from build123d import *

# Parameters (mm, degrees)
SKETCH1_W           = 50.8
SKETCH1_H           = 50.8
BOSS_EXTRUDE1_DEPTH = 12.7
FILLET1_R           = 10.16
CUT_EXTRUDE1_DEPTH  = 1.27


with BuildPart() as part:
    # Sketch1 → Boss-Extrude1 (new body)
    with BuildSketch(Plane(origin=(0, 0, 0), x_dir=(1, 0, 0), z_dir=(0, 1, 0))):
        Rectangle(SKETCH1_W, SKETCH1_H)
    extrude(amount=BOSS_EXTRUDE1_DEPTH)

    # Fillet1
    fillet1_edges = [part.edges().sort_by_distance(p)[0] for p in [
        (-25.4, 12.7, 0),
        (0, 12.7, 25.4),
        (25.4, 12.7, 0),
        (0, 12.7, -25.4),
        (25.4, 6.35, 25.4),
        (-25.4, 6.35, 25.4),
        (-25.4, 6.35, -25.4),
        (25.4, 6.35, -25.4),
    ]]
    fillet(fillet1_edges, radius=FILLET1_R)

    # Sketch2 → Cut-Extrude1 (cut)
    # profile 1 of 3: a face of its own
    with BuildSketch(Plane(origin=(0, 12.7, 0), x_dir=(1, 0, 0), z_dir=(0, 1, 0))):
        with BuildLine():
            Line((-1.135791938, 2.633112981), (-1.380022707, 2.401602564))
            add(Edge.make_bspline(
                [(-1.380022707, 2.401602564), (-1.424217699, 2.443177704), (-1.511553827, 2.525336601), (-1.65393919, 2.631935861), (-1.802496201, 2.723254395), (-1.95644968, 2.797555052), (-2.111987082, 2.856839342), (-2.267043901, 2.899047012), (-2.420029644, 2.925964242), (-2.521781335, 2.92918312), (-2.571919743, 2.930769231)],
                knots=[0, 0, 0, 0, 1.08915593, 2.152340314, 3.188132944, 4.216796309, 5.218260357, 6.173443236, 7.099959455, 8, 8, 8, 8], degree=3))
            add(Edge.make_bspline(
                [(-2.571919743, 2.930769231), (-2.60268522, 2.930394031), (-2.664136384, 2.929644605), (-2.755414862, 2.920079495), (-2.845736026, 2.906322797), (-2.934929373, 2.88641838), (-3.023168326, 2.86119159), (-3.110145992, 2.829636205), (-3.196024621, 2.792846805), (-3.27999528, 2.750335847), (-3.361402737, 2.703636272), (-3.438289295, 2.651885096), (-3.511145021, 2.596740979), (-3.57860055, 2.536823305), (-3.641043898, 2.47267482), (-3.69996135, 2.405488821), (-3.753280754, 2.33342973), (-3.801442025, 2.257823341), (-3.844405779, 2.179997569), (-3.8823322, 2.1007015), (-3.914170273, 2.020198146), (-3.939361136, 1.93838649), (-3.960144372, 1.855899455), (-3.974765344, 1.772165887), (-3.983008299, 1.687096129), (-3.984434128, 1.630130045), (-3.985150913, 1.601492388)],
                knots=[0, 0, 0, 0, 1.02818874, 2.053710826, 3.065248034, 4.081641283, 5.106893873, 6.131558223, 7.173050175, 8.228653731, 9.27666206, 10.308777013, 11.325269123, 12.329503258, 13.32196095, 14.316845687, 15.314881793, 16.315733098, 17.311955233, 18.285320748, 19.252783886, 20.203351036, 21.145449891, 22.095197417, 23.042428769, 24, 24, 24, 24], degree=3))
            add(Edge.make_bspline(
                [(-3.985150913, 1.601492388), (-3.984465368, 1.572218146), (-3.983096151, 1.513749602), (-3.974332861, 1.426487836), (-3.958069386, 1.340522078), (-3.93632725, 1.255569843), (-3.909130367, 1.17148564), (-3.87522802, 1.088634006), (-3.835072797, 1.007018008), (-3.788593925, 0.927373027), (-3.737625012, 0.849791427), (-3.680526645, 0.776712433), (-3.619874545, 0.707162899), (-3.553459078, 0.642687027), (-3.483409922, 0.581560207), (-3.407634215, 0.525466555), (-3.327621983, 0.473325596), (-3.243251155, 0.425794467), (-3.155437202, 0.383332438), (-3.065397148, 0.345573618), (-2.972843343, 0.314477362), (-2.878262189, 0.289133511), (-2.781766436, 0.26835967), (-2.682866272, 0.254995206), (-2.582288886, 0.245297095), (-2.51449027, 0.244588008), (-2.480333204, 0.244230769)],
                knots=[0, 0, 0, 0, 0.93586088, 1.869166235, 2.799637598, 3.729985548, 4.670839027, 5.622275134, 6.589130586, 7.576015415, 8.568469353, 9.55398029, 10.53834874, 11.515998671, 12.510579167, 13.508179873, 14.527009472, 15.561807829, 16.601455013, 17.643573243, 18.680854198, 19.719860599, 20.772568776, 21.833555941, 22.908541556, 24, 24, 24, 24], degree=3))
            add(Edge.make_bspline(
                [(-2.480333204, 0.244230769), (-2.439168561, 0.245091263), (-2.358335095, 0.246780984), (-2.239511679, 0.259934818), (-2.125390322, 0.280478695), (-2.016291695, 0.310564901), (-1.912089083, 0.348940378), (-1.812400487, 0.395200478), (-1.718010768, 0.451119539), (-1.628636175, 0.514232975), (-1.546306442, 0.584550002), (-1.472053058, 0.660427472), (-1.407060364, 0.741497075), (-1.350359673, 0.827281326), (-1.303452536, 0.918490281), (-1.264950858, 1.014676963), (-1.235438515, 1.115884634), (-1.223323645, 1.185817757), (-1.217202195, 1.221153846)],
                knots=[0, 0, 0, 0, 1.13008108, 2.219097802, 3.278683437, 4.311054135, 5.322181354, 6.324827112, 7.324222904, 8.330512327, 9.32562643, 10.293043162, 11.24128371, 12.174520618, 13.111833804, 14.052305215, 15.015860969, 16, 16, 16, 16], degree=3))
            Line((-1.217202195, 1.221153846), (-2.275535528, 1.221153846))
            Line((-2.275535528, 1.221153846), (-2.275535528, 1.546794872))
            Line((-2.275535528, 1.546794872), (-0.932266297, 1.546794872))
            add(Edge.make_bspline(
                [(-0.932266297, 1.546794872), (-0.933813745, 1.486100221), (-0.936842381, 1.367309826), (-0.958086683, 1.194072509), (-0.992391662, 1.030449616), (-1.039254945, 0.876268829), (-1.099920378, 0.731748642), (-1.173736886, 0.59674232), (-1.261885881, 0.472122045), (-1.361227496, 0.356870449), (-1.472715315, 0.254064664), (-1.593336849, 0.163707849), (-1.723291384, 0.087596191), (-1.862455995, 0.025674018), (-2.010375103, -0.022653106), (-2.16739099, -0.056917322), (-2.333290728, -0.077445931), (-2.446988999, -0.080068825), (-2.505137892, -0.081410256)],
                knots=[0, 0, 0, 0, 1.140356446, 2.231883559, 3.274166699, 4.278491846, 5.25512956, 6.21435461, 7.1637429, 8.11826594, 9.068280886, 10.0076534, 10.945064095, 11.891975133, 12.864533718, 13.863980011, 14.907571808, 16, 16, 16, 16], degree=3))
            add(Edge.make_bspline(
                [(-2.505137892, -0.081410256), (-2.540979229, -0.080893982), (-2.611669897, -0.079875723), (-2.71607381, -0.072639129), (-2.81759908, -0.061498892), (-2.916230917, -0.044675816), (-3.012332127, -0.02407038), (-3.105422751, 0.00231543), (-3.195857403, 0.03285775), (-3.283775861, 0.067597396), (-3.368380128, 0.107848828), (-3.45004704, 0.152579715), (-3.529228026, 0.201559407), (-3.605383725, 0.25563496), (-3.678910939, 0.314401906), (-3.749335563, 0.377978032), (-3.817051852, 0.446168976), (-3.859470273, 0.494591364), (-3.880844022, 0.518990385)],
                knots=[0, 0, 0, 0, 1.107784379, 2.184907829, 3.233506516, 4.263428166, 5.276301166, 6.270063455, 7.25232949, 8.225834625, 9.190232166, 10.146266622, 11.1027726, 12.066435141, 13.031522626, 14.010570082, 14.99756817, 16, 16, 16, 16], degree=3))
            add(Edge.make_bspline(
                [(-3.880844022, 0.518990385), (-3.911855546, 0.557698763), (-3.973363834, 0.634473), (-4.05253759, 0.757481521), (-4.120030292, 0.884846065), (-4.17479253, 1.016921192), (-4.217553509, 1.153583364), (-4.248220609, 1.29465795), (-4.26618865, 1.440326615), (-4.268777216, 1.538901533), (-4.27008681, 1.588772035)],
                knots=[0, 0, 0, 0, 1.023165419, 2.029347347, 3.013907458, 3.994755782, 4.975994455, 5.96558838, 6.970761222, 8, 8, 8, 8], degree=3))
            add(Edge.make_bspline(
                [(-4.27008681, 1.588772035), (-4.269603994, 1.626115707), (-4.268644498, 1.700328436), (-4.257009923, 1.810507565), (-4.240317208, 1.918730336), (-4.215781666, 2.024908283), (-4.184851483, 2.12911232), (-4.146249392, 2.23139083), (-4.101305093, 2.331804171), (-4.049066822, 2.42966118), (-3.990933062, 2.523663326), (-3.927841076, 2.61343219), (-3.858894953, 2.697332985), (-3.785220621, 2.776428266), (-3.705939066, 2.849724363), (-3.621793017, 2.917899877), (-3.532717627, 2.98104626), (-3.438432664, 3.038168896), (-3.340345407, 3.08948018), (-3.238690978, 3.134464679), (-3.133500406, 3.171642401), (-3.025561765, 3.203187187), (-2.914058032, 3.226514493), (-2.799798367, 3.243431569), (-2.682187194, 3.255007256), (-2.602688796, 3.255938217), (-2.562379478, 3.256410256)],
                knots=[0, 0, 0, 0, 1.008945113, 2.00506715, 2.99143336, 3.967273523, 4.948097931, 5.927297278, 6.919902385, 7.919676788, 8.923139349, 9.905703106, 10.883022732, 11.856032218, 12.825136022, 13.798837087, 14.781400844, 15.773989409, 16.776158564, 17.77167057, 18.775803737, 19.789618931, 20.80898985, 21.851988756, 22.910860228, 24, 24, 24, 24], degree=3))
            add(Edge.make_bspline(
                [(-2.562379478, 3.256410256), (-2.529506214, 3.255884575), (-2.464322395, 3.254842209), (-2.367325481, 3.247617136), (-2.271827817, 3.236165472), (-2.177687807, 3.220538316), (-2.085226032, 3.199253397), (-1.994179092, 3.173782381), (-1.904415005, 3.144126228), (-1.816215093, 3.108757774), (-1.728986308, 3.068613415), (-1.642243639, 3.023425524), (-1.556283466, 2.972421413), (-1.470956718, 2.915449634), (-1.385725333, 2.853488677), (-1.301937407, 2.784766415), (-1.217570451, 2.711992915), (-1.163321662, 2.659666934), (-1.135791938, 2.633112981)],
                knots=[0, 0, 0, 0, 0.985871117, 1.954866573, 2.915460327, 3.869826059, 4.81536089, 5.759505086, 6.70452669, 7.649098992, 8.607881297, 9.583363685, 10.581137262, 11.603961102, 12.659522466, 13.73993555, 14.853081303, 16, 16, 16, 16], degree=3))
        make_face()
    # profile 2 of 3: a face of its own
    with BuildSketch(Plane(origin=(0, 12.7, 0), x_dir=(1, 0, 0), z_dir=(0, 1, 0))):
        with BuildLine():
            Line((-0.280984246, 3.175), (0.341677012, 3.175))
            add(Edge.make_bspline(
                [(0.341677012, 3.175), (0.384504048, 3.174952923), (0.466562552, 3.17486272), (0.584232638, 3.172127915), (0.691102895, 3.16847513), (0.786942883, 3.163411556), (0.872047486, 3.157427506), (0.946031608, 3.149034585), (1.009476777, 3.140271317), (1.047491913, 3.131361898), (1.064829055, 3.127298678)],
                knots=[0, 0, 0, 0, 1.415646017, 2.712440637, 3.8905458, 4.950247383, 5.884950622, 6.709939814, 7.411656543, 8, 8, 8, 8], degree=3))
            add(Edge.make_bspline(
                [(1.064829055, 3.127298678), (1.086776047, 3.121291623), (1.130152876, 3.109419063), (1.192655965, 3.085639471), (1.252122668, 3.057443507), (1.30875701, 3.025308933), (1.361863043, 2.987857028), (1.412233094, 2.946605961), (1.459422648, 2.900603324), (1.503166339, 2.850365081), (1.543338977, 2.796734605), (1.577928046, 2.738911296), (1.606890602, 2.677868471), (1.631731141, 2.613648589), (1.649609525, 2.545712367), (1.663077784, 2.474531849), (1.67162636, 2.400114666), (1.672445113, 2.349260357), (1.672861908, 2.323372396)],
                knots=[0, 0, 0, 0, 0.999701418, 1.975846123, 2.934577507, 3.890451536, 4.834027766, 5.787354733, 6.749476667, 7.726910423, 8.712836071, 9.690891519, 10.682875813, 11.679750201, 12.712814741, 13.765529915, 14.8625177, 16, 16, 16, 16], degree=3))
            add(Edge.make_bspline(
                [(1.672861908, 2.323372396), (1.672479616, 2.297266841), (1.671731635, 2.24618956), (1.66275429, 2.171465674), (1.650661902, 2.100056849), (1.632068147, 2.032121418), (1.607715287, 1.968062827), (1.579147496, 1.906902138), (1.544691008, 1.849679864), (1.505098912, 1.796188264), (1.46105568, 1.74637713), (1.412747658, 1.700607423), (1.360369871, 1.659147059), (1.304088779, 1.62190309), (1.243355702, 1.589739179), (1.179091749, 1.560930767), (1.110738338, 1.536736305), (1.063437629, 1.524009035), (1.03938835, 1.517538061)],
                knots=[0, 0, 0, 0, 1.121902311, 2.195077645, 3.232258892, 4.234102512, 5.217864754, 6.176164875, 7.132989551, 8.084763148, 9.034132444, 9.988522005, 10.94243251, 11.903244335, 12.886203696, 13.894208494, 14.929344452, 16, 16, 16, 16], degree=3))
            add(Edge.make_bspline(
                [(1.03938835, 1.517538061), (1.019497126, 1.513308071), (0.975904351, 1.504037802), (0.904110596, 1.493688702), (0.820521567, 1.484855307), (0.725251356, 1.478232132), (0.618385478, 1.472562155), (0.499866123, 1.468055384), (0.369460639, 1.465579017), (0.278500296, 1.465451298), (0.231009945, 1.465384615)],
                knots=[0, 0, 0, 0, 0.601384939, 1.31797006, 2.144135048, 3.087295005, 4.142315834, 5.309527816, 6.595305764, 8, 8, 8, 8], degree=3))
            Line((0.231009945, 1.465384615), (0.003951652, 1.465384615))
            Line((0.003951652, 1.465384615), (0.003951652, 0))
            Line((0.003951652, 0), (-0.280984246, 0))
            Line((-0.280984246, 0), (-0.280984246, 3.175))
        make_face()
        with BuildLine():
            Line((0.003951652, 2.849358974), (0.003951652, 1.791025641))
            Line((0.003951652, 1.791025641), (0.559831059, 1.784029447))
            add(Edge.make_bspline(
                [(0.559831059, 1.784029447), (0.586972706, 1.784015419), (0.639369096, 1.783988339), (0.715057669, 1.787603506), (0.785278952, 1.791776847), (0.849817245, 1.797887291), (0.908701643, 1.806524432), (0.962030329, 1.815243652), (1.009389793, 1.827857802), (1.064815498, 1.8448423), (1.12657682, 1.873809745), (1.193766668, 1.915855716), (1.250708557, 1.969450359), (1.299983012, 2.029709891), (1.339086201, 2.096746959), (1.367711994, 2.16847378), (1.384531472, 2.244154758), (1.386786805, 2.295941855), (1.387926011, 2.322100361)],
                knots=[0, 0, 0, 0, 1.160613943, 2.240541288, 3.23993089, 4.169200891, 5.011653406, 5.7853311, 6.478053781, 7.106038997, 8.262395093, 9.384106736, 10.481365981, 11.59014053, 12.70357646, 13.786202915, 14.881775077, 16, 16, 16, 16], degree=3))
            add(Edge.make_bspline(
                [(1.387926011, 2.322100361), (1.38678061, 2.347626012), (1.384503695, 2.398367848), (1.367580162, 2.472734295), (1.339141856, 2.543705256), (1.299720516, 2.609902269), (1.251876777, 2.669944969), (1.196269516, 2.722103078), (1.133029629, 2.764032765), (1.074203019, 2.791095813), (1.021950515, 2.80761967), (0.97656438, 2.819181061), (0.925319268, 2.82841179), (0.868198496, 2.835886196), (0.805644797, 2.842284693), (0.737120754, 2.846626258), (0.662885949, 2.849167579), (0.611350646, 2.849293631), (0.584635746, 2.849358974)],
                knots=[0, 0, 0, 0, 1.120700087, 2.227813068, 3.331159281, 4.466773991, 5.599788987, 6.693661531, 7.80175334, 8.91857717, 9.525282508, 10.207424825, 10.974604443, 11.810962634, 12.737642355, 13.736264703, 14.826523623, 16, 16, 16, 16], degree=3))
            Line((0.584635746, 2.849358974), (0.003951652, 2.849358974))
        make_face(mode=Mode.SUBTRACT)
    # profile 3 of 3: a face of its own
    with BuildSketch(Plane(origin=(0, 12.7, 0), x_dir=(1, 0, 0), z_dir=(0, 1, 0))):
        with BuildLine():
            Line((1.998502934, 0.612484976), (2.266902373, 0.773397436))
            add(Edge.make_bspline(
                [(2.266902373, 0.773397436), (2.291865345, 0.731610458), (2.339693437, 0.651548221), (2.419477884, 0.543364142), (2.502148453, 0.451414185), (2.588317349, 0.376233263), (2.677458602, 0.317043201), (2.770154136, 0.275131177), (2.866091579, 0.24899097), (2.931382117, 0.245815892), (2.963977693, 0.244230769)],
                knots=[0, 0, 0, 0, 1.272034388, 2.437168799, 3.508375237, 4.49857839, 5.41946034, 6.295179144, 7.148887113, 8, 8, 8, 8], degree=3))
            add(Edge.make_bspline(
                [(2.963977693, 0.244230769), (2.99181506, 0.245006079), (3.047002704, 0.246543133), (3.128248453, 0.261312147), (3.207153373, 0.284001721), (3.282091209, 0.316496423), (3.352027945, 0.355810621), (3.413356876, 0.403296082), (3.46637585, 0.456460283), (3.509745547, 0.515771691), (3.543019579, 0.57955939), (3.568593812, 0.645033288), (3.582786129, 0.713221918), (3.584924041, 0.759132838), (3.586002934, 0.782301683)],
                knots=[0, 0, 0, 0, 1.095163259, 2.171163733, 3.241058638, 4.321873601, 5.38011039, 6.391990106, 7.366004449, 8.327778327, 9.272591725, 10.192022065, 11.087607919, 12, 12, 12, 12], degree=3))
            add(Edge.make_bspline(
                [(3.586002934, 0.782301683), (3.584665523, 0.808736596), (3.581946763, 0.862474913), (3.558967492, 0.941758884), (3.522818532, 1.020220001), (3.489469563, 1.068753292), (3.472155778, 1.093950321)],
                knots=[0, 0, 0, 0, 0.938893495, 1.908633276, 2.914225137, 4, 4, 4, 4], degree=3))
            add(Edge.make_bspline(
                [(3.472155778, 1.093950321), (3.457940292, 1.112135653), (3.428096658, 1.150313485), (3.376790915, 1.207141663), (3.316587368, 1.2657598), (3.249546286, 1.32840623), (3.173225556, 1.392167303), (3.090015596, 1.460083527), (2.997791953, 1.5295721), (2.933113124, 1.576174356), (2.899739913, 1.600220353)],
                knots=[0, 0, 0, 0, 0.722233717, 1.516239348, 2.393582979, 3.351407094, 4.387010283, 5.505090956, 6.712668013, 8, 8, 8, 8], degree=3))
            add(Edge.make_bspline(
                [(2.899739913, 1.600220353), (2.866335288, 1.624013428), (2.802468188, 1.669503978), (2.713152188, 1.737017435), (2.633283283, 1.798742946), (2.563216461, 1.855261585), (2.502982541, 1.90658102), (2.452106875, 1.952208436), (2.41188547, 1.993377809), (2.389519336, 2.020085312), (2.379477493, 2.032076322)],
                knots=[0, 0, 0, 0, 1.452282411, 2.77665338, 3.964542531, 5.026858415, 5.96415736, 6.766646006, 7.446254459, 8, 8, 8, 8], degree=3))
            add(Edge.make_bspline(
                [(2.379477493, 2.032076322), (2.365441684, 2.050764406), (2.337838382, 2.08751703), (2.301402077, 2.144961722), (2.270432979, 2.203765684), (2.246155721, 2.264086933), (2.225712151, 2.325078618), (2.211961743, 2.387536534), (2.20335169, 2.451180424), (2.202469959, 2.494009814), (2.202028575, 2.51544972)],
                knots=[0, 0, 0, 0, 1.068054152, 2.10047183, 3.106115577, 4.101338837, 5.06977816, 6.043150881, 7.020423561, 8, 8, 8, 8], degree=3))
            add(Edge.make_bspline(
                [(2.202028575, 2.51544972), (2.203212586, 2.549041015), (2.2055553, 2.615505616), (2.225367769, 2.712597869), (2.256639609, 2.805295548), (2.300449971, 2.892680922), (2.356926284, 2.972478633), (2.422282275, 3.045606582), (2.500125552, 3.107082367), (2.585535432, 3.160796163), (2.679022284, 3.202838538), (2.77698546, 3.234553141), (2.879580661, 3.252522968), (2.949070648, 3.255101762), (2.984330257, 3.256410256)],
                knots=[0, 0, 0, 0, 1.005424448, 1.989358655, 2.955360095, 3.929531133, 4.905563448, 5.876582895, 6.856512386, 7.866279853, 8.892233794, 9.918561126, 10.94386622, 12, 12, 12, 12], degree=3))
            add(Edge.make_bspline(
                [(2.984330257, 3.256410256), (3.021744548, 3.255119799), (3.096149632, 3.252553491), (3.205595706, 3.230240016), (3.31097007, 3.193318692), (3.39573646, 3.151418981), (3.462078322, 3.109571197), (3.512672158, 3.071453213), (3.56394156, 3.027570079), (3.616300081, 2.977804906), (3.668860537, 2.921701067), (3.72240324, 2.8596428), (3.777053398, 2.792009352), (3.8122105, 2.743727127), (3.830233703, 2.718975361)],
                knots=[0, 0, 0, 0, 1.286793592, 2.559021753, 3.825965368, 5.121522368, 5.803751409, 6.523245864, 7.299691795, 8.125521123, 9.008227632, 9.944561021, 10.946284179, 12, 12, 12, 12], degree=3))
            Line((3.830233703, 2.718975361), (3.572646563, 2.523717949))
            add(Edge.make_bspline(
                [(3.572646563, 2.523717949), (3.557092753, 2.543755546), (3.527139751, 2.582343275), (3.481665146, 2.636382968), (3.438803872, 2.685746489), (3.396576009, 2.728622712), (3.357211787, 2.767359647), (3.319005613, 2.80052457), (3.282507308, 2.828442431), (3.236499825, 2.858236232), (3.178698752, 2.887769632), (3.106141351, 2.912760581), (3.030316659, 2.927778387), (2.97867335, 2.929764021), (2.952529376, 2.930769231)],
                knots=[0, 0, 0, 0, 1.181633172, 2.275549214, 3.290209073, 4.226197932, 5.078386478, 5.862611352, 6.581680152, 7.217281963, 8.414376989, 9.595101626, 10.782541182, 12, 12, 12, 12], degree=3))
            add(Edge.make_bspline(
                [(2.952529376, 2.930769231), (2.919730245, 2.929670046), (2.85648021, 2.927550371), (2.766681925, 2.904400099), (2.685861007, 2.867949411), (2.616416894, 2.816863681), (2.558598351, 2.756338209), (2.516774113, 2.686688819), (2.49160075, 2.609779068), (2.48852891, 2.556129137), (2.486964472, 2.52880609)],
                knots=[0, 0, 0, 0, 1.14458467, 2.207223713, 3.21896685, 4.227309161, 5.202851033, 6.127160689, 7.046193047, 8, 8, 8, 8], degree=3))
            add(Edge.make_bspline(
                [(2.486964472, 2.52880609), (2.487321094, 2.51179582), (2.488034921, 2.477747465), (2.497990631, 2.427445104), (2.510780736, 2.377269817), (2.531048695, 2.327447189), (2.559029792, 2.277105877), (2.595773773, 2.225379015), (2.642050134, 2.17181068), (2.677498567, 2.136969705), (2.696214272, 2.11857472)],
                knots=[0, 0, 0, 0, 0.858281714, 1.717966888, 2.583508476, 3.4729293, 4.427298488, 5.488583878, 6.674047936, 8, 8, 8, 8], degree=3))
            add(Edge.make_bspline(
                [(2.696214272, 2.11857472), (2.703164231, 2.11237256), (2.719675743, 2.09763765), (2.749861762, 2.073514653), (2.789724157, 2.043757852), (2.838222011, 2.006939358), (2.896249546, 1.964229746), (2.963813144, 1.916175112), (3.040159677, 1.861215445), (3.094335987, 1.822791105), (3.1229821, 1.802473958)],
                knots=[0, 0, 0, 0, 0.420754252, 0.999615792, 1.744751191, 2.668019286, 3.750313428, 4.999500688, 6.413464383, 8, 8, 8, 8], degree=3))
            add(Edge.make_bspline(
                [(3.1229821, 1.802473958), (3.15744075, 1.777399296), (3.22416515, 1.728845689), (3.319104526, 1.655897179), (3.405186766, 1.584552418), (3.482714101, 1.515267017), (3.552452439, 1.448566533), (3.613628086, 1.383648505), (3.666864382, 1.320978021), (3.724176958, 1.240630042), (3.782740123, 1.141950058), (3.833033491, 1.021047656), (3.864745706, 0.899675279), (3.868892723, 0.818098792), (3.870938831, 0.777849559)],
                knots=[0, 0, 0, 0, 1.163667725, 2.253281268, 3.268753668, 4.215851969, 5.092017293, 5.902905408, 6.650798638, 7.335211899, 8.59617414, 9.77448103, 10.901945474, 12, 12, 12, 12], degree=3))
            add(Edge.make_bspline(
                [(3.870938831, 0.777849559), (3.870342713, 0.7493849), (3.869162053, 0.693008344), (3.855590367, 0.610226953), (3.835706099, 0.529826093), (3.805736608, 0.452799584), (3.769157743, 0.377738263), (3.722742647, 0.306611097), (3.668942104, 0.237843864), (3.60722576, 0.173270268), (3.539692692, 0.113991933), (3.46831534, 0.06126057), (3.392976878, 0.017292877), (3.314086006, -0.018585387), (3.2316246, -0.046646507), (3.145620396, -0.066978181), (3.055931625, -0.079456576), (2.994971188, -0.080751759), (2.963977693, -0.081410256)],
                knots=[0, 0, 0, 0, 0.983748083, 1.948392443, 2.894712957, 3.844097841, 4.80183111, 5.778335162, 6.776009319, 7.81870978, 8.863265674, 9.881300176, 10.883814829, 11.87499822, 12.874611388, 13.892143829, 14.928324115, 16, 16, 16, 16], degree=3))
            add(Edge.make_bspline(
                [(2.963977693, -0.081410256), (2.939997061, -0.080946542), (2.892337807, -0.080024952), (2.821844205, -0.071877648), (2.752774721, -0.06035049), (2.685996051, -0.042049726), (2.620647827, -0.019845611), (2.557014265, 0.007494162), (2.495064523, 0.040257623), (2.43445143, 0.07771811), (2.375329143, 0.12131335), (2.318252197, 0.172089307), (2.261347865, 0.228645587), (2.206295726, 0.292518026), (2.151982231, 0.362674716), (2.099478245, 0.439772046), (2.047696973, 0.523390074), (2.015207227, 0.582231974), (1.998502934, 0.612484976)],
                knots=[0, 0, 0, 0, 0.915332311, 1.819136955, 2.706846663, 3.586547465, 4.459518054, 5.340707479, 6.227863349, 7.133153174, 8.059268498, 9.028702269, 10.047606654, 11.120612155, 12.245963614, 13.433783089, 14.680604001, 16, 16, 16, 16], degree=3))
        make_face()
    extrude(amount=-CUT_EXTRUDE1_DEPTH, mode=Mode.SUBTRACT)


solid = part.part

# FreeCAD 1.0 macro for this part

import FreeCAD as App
import Part
import Sketcher

V = App.Vector
Q = App.Units.Quantity


def edges_at(feature, points):
    """Names of the edges that pass closest to the given points."""
    edges = feature.Shape.Edges
    near = lambda p: min(range(len(edges)), key=lambda i: edges[i].distToShape(Part.Vertex(*p))[0])
    return sorted({f"Edge{near(p) + 1}" for p in points})


def add_polygon(sketch, points):
    """Adds a closed chain of lines whose ends are joined by coincident constraints."""
    first, n = sketch.GeometryCount, len(points)
    for a, b in zip(points, points[1:] + points[:1]):
        sketch.addGeometry(Part.LineSegment(App.Vector(*a, 0), App.Vector(*b, 0)), False)
    for i in range(n):
        sketch.addConstraint(Sketcher.Constraint("Coincident", first + i, 2, first + (i + 1) % n, 1))

doc = App.newDocument("Part")
body = doc.addObject("PartDesign::Body", "Body")

# Sketch on XZ plane
sketch1 = doc.addObject("Sketcher::SketchObject", "Sketch")
body.addObject(sketch1)
sketch1.AttachmentSupport = (doc.XZ_Plane, [""])
sketch1.MapMode = "FlatFace"
add_polygon(sketch1, [(-25, -25), (-25, 25), (25, 25), (25, -25)])  # lines 0-3
sketch1.addConstraint([
    Sketcher.Constraint("Vertical", 0),
    Sketcher.Constraint("Horizontal", 1),
    Sketcher.Constraint("Vertical", 2),
    Sketcher.Constraint("Horizontal", 3),
    Sketcher.Constraint("Symmetric", 0, 2, 2, 2, -1, 1),
    Sketcher.Constraint("Equal", 3, 0),
    Sketcher.Constraint("DistanceX", 1, 1, 1, 2, Q("2 in")),
])
pad1 = doc.addObject("PartDesign::Pad", "Pad")
body.addObject(pad1)
pad1.Profile = sketch1
pad1.Length = Q("0.5 in")
pad1.Reversed = True
doc.recompute()

fillet = doc.addObject("PartDesign::Fillet", "Fillet")
body.addObject(fillet)
fillet.Base = (pad1, edges_at(pad1, [
    (-25.4, 12.7, 0),
    (0, 12.7, 25.4),
    (25.4, 12.7, 0),
    (0, 12.7, -25.4),
    (25.4, 6.35, 25.4),
    (-25.4, 6.35, 25.4),
    (-25.4, 6.35, -25.4),
    (25.4, 6.35, -25.4),
]))
fillet.Radius = Q("0.4 in")

# Sketch on XZ plane
sketch2 = doc.addObject("Sketcher::SketchObject", "Sketch001")
body.addObject(sketch2)
sketch2.AttachmentSupport = (doc.XZ_Plane, [""])
sketch2.MapMode = "FlatFace"
sketch2.AttachmentOffset = App.Placement(V(0, 0, -0.5 * 25.4), App.Rotation())
sketch2.addGeometry([
    Part.LineSegment(V(-1.380023, -2.401603, 0), V(-1.135792, -2.633113, 0)),  # 0
    Part.BSplineCurve([V(-2.562379, -3.25641, 0), V(-2.529506, -3.255885, 0), V(-2.464322, -3.254842, 0), V(-2.367325, -3.247617, 0), V(-2.271828, -3.236165, 0), V(-2.177688, -3.220538, 0), V(-2.085226, -3.199253, 0), V(-1.994179, -3.173782, 0), V(-1.904415, -3.144126, 0), V(-1.816215, -3.108758, 0), V(-1.728986, -3.068613, 0), V(-1.642244, -3.023426, 0), V(-1.556283, -2.972421, 0), V(-1.470957, -2.91545, 0), V(-1.385725, -2.853489, 0), V(-1.301937, -2.784766, 0), V(-1.21757, -2.711993, 0), V(-1.163322, -2.659667, 0), V(-1.135792, -2.633113, 0)], [4, 1, 1, 1, 1, 1, 1, 1, 1, 1, 1, 1, 1, 1, 1, 1, 4], [0, 0.985871117, 1.954866573, 2.915460327, 3.869826059, 4.81536089, 5.759505086, 6.70452669, 7.649098992, 8.607881297, 9.583363685, 10.581137262, 11.603961102, 12.659522466, 13.73993555, 14.853081303, 16], False, 3, [1, 1, 1, 1, 1, 1, 1, 1, 1, 1, 1, 1, 1, 1, 1, 1, 1, 1, 1], False),  # 1
    Part.BSplineCurve([V(-4.270087, -1.588772, 0), V(-4.269604, -1.626116, 0), V(-4.268644, -1.700328, 0), V(-4.25701, -1.810508, 0), V(-4.240317, -1.91873, 0), V(-4.215782, -2.024908, 0), V(-4.184851, -2.129112, 0), V(-4.146249, -2.231391, 0), V(-4.101305, -2.331804, 0), V(-4.049067, -2.429661, 0), V(-3.990933, -2.523663, 0), V(-3.927841, -2.613432, 0), V(-3.858895, -2.697333, 0), V(-3.785221, -2.776428, 0), V(-3.705939, -2.849724, 0), V(-3.621793, -2.9179, 0), V(-3.532718, -2.981046, 0), V(-3.438433, -3.038169, 0), V(-3.340345, -3.08948, 0), V(-3.238691, -3.134465, 0), V(-3.1335, -3.171642, 0), V(-3.025562, -3.203187, 0), V(-2.914058, -3.226514, 0), V(-2.799798, -3.243432, 0), V(-2.682187, -3.255007, 0), V(-2.602689, -3.255938, 0), V(-2.562379, -3.25641, 0)], [4, 1, 1, 1, 1, 1, 1, 1, 1, 1, 1, 1, 1, 1, 1, 1, 1, 1, 1, 1, 1, 1, 1, 1, 4], [0, 1.008945113, 2.00506715, 2.99143336, 3.967273523, 4.948097931, 5.927297278, 6.919902385, 7.919676788, 8.923139349, 9.905703106, 10.883022732, 11.856032218, 12.825136022, 13.798837087, 14.781400844, 15.773989409, 16.776158564, 17.77167057, 18.775803737, 19.789618931, 20.80898985, 21.851988756, 22.910860228, 24], False, 3, [1, 1, 1, 1, 1, 1, 1, 1, 1, 1, 1, 1, 1, 1, 1, 1, 1, 1, 1, 1, 1, 1, 1, 1, 1, 1, 1], False),  # 2
    Part.BSplineCurve([V(-3.880844, -0.51899, 0), V(-3.911856, -0.557699, 0), V(-3.973364, -0.634473, 0), V(-4.052538, -0.757482, 0), V(-4.12003, -0.884846, 0), V(-4.174793, -1.016921, 0), V(-4.217554, -1.153583, 0), V(-4.248221, -1.294658, 0), V(-4.266189, -1.440327, 0), V(-4.268777, -1.538902, 0), V(-4.270087, -1.588772, 0)], [4, 1, 1, 1, 1, 1, 1, 1, 4], [0, 1.023165419, 2.029347347, 3.013907458, 3.994755782, 4.975994455, 5.96558838, 6.970761222, 8], False, 3, [1, 1, 1, 1, 1, 1, 1, 1, 1, 1, 1], False),  # 3
    Part.BSplineCurve([V(-2.505138, 0.08141, 0), V(-2.540979, 0.080894, 0), V(-2.61167, 0.079876, 0), V(-2.716074, 0.072639, 0), V(-2.817599, 0.061499, 0), V(-2.916231, 0.044676, 0), V(-3.012332, 0.02407, 0), V(-3.105423, -0.002315, 0), V(-3.195857, -0.032858, 0), V(-3.283776, -0.067597, 0), V(-3.36838, -0.107849, 0), V(-3.450047, -0.15258, 0), V(-3.529228, -0.201559, 0), V(-3.605384, -0.255635, 0), V(-3.678911, -0.314402, 0), V(-3.749336, -0.377978, 0), V(-3.817052, -0.446169, 0), V(-3.85947, -0.494591, 0), V(-3.880844, -0.51899, 0)], [4, 1, 1, 1, 1, 1, 1, 1, 1, 1, 1, 1, 1, 1, 1, 1, 4], [0, 1.107784379, 2.184907829, 3.233506516, 4.263428166, 5.276301166, 6.270063455, 7.25232949, 8.225834625, 9.190232166, 10.146266622, 11.1027726, 12.066435141, 13.031522626, 14.010570082, 14.99756817, 16], False, 3, [1, 1, 1, 1, 1, 1, 1, 1, 1, 1, 1, 1, 1, 1, 1, 1, 1, 1, 1], False),  # 4
    Part.BSplineCurve([V(-0.932266, -1.546795, 0), V(-0.933814, -1.4861, 0), V(-0.936842, -1.36731, 0), V(-0.958087, -1.194073, 0), V(-0.992392, -1.03045, 0), V(-1.039255, -0.876269, 0), V(-1.09992, -0.731749, 0), V(-1.173737, -0.596742, 0), V(-1.261886, -0.472122, 0), V(-1.361227, -0.35687, 0), V(-1.472715, -0.254065, 0), V(-1.593337, -0.163708, 0), V(-1.723291, -0.087596, 0), V(-1.862456, -0.025674, 0), V(-2.010375, 0.022653, 0), V(-2.167391, 0.056917, 0), V(-2.333291, 0.077446, 0), V(-2.446989, 0.080069, 0), V(-2.505138, 0.08141, 0)], [4, 1, 1, 1, 1, 1, 1, 1, 1, 1, 1, 1, 1, 1, 1, 1, 4], [0, 1.140356446, 2.231883559, 3.274166699, 4.278491846, 5.25512956, 6.21435461, 7.1637429, 8.11826594, 9.068280886, 10.0076534, 10.945064095, 11.891975133, 12.864533718, 13.863980011, 14.907571808, 16], False, 3, [1, 1, 1, 1, 1, 1, 1, 1, 1, 1, 1, 1, 1, 1, 1, 1, 1, 1, 1], False),  # 5
    Part.LineSegment(V(-0.932266, -1.546795, 0), V(-2.275536, -1.546795, 0)),  # 6
    Part.LineSegment(V(-2.275536, -1.546795, 0), V(-2.275536, -1.221154, 0)),  # 7
    Part.LineSegment(V(-2.275536, -1.221154, 0), V(-1.217202, -1.221154, 0)),  # 8
    Part.BSplineCurve([V(-2.480333, -0.244231, 0), V(-2.439169, -0.245091, 0), V(-2.358335, -0.246781, 0), V(-2.239512, -0.259935, 0), V(-2.12539, -0.280479, 0), V(-2.016292, -0.310565, 0), V(-1.912089, -0.34894, 0), V(-1.8124, -0.3952, 0), V(-1.718011, -0.45112, 0), V(-1.628636, -0.514233, 0), V(-1.546306, -0.58455, 0), V(-1.472053, -0.660427, 0), V(-1.40706, -0.741497, 0), V(-1.35036, -0.827281, 0), V(-1.303453, -0.91849, 0), V(-1.264951, -1.014677, 0), V(-1.235439, -1.115885, 0), V(-1.223324, -1.185818, 0), V(-1.217202, -1.221154, 0)], [4, 1, 1, 1, 1, 1, 1, 1, 1, 1, 1, 1, 1, 1, 1, 1, 4], [0, 1.13008108, 2.219097802, 3.278683437, 4.311054135, 5.322181354, 6.324827112, 7.324222904, 8.330512327, 9.32562643, 10.293043162, 11.24128371, 12.174520618, 13.111833804, 14.052305215, 15.015860969, 16], False, 3, [1, 1, 1, 1, 1, 1, 1, 1, 1, 1, 1, 1, 1, 1, 1, 1, 1, 1, 1], False),  # 9
    Part.BSplineCurve([V(-3.985151, -1.601492, 0), V(-3.984465, -1.572218, 0), V(-3.983096, -1.51375, 0), V(-3.974333, -1.426488, 0), V(-3.958069, -1.340522, 0), V(-3.936327, -1.25557, 0), V(-3.90913, -1.171486, 0), V(-3.875228, -1.088634, 0), V(-3.835073, -1.007018, 0), V(-3.788594, -0.927373, 0), V(-3.737625, -0.849791, 0), V(-3.680527, -0.776712, 0), V(-3.619875, -0.707163, 0), V(-3.553459, -0.642687, 0), V(-3.48341, -0.58156, 0), V(-3.407634, -0.525467, 0), V(-3.327622, -0.473326, 0), V(-3.243251, -0.425794, 0), V(-3.155437, -0.383332, 0), V(-3.065397, -0.345574, 0), V(-2.972843, -0.314477, 0), V(-2.878262, -0.289134, 0), V(-2.781766, -0.26836, 0), V(-2.682866, -0.254995, 0), V(-2.582289, -0.245297, 0), V(-2.51449, -0.244588, 0), V(-2.480333, -0.244231, 0)], [4, 1, 1, 1, 1, 1, 1, 1, 1, 1, 1, 1, 1, 1, 1, 1, 1, 1, 1, 1, 1, 1, 1, 1, 4], [0, 0.93586088, 1.869166235, 2.799637598, 3.729985548, 4.670839027, 5.622275134, 6.589130586, 7.576015415, 8.568469353, 9.55398029, 10.53834874, 11.515998671, 12.510579167, 13.508179873, 14.527009472, 15.561807829, 16.601455013, 17.643573243, 18.680854198, 19.719860599, 20.772568776, 21.833555941, 22.908541556, 24], False, 3, [1, 1, 1, 1, 1, 1, 1, 1, 1, 1, 1, 1, 1, 1, 1, 1, 1, 1, 1, 1, 1, 1, 1, 1, 1, 1, 1], False),  # 10
    Part.BSplineCurve([V(-2.57192, -2.930769, 0), V(-2.602685, -2.930394, 0), V(-2.664136, -2.929645, 0), V(-2.755415, -2.920079, 0), V(-2.845736, -2.906323, 0), V(-2.934929, -2.886418, 0), V(-3.023168, -2.861192, 0), V(-3.110146, -2.829636, 0), V(-3.196025, -2.792847, 0), V(-3.279995, -2.750336, 0), V(-3.361403, -2.703636, 0), V(-3.438289, -2.651885, 0), V(-3.511145, -2.596741, 0), V(-3.578601, -2.536823, 0), V(-3.641044, -2.472675, 0), V(-3.699961, -2.405489, 0), V(-3.753281, -2.33343, 0), V(-3.801442, -2.257823, 0), V(-3.844406, -2.179998, 0), V(-3.882332, -2.100701, 0), V(-3.91417, -2.020198, 0), V(-3.939361, -1.938386, 0), V(-3.960144, -1.855899, 0), V(-3.974765, -1.772166, 0), V(-3.983008, -1.687096, 0), V(-3.984434, -1.63013, 0), V(-3.985151, -1.601492, 0)], [4, 1, 1, 1, 1, 1, 1, 1, 1, 1, 1, 1, 1, 1, 1, 1, 1, 1, 1, 1, 1, 1, 1, 1, 4], [0, 1.02818874, 2.053710826, 3.065248034, 4.081641283, 5.106893873, 6.131558223, 7.173050175, 8.228653731, 9.27666206, 10.308777013, 11.325269123, 12.329503258, 13.32196095, 14.316845687, 15.314881793, 16.315733098, 17.311955233, 18.285320748, 19.252783886, 20.203351036, 21.145449891, 22.095197417, 23.042428769, 24], False, 3, [1, 1, 1, 1, 1, 1, 1, 1, 1, 1, 1, 1, 1, 1, 1, 1, 1, 1, 1, 1, 1, 1, 1, 1, 1, 1, 1], False),  # 11
    Part.BSplineCurve([V(-1.380023, -2.401603, 0), V(-1.424218, -2.443178, 0), V(-1.511554, -2.525337, 0), V(-1.653939, -2.631936, 0), V(-1.802496, -2.723254, 0), V(-1.95645, -2.797555, 0), V(-2.111987, -2.856839, 0), V(-2.267044, -2.899047, 0), V(-2.42003, -2.925964, 0), V(-2.521781, -2.929183, 0), V(-2.57192, -2.930769, 0)], [4, 1, 1, 1, 1, 1, 1, 1, 4], [0, 1.08915593, 2.152340314, 3.188132944, 4.216796309, 5.218260357, 6.173443236, 7.099959455, 8], False, 3, [1, 1, 1, 1, 1, 1, 1, 1, 1, 1, 1], False),  # 12
    Part.LineSegment(V(0.341677, -3.175, 0), V(-0.280984, -3.175, 0)),  # 13
    Part.LineSegment(V(-0.280984, -3.175, 0), V(-0.280984, 0, 0)),  # 14
    Part.LineSegment(V(-0.280984, 0, 0), V(0.003952, 0, 0)),  # 15
    Part.LineSegment(V(0.003952, 0, 0), V(0.003952, -1.465385, 0)),  # 16
    Part.LineSegment(V(0.003952, -1.465385, 0), V(0.23101, -1.465385, 0)),  # 17
    Part.BSplineCurve([V(1.039388, -1.517538, 0), V(1.019497, -1.513308, 0), V(0.975904, -1.504038, 0), V(0.904111, -1.493689, 0), V(0.820522, -1.484855, 0), V(0.725251, -1.478232, 0), V(0.618385, -1.472562, 0), V(0.499866, -1.468055, 0), V(0.369461, -1.465579, 0), V(0.2785, -1.465451, 0), V(0.23101, -1.465385, 0)], [4, 1, 1, 1, 1, 1, 1, 1, 4], [0, 0.601384939, 1.31797006, 2.144135048, 3.087295005, 4.142315834, 5.309527816, 6.595305764, 8], False, 3, [1, 1, 1, 1, 1, 1, 1, 1, 1, 1, 1], False),  # 18
    Part.BSplineCurve([V(1.672862, -2.323372, 0), V(1.67248, -2.297267, 0), V(1.671732, -2.24619, 0), V(1.662754, -2.171466, 0), V(1.650662, -2.100057, 0), V(1.632068, -2.032121, 0), V(1.607715, -1.968063, 0), V(1.579147, -1.906902, 0), V(1.544691, -1.84968, 0), V(1.505099, -1.796188, 0), V(1.461056, -1.746377, 0), V(1.412748, -1.700607, 0), V(1.36037, -1.659147, 0), V(1.304089, -1.621903, 0), V(1.243356, -1.589739, 0), V(1.179092, -1.560931, 0), V(1.110738, -1.536736, 0), V(1.063438, -1.524009, 0), V(1.039388, -1.517538, 0)], [4, 1, 1, 1, 1, 1, 1, 1, 1, 1, 1, 1, 1, 1, 1, 1, 4], [0, 1.121902311, 2.195077645, 3.232258892, 4.234102512, 5.217864754, 6.176164875, 7.132989551, 8.084763148, 9.034132444, 9.988522005, 10.94243251, 11.903244335, 12.886203696, 13.894208494, 14.929344452, 16], False, 3, [1, 1, 1, 1, 1, 1, 1, 1, 1, 1, 1, 1, 1, 1, 1, 1, 1, 1, 1], False),  # 19
    Part.BSplineCurve([V(1.064829, -3.127299, 0), V(1.086776, -3.121292, 0), V(1.130153, -3.109419, 0), V(1.192656, -3.085639, 0), V(1.252123, -3.057444, 0), V(1.308757, -3.025309, 0), V(1.361863, -2.987857, 0), V(1.412233, -2.946606, 0), V(1.459423, -2.900603, 0), V(1.503166, -2.850365, 0), V(1.543339, -2.796735, 0), V(1.577928, -2.738911, 0), V(1.606891, -2.677868, 0), V(1.631731, -2.613649, 0), V(1.64961, -2.545712, 0), V(1.663078, -2.474532, 0), V(1.671626, -2.400115, 0), V(1.672445, -2.34926, 0), V(1.672862, -2.323372, 0)], [4, 1, 1, 1, 1, 1, 1, 1, 1, 1, 1, 1, 1, 1, 1, 1, 4], [0, 0.999701418, 1.975846123, 2.934577507, 3.890451536, 4.834027766, 5.787354733, 6.749476667, 7.726910423, 8.712836071, 9.690891519, 10.682875813, 11.679750201, 12.712814741, 13.765529915, 14.8625177, 16], False, 3, [1, 1, 1, 1, 1, 1, 1, 1, 1, 1, 1, 1, 1, 1, 1, 1, 1, 1, 1], False),  # 20
    Part.BSplineCurve([V(0.341677, -3.175, 0), V(0.384504, -3.174953, 0), V(0.466563, -3.174863, 0), V(0.584233, -3.172128, 0), V(0.691103, -3.168475, 0), V(0.786943, -3.163412, 0), V(0.872047, -3.157428, 0), V(0.946032, -3.149035, 0), V(1.009477, -3.140271, 0), V(1.047492, -3.131362, 0), V(1.064829, -3.127299, 0)], [4, 1, 1, 1, 1, 1, 1, 1, 4], [0, 1.415646017, 2.712440637, 3.8905458, 4.950247383, 5.884950622, 6.709939814, 7.411656543, 8], False, 3, [1, 1, 1, 1, 1, 1, 1, 1, 1, 1, 1], False),  # 21
    Part.LineSegment(V(0.003952, -2.849359, 0), V(0.584636, -2.849359, 0)),  # 22
    Part.BSplineCurve([V(1.387926, -2.3221, 0), V(1.386781, -2.347626, 0), V(1.384504, -2.398368, 0), V(1.36758, -2.472734, 0), V(1.339142, -2.543705, 0), V(1.299721, -2.609902, 0), V(1.251877, -2.669945, 0), V(1.19627, -2.722103, 0), V(1.13303, -2.764033, 0), V(1.074203, -2.791096, 0), V(1.021951, -2.80762, 0), V(0.976564, -2.819181, 0), V(0.925319, -2.828412, 0), V(0.868198, -2.835886, 0), V(0.805645, -2.842285, 0), V(0.737121, -2.846626, 0), V(0.662886, -2.849168, 0), V(0.611351, -2.849294, 0), V(0.584636, -2.849359, 0)], [4, 1, 1, 1, 1, 1, 1, 1, 1, 1, 1, 1, 1, 1, 1, 1, 4], [0, 1.120700087, 2.227813068, 3.331159281, 4.466773991, 5.599788987, 6.693661531, 7.80175334, 8.91857717, 9.525282508, 10.207424825, 10.974604443, 11.810962634, 12.737642355, 13.736264703, 14.826523623, 16], False, 3, [1, 1, 1, 1, 1, 1, 1, 1, 1, 1, 1, 1, 1, 1, 1, 1, 1, 1, 1], False),  # 23
    Part.BSplineCurve([V(0.559831, -1.784029, 0), V(0.586973, -1.784015, 0), V(0.639369, -1.783988, 0), V(0.715058, -1.787604, 0), V(0.785279, -1.791777, 0), V(0.849817, -1.797887, 0), V(0.908702, -1.806524, 0), V(0.96203, -1.815244, 0), V(1.00939, -1.827858, 0), V(1.064815, -1.844842, 0), V(1.126577, -1.87381, 0), V(1.193767, -1.915856, 0), V(1.250709, -1.96945, 0), V(1.299983, -2.02971, 0), V(1.339086, -2.096747, 0), V(1.367712, -2.168474, 0), V(1.384531, -2.244155, 0), V(1.386787, -2.295942, 0), V(1.387926, -2.3221, 0)], [4, 1, 1, 1, 1, 1, 1, 1, 1, 1, 1, 1, 1, 1, 1, 1, 4], [0, 1.160613943, 2.240541288, 3.23993089, 4.169200891, 5.011653406, 5.7853311, 6.478053781, 7.106038997, 8.262395093, 9.384106736, 10.481365981, 11.59014053, 12.70357646, 13.786202915, 14.881775077, 16], False, 3, [1, 1, 1, 1, 1, 1, 1, 1, 1, 1, 1, 1, 1, 1, 1, 1, 1, 1, 1], False),  # 24
    Part.LineSegment(V(0.559831, -1.784029, 0), V(0.003952, -1.791026, 0)),  # 25
    Part.LineSegment(V(0.003952, -1.791026, 0), V(0.003952, -2.849359, 0)),  # 26
    Part.LineSegment(V(2.266902, -0.773397, 0), V(1.998503, -0.612485, 0)),  # 27
    Part.BSplineCurve([V(2.963978, 0.08141, 0), V(2.939997, 0.080947, 0), V(2.892338, 0.080025, 0), V(2.821844, 0.071878, 0), V(2.752775, 0.06035, 0), V(2.685996, 0.04205, 0), V(2.620648, 0.019846, 0), V(2.557014, -0.007494, 0), V(2.495065, -0.040258, 0), V(2.434451, -0.077718, 0), V(2.375329, -0.121313, 0), V(2.318252, -0.172089, 0), V(2.261348, -0.228646, 0), V(2.206296, -0.292518, 0), V(2.151982, -0.362675, 0), V(2.099478, -0.439772, 0), V(2.047697, -0.52339, 0), V(2.015207, -0.582232, 0), V(1.998503, -0.612485, 0)], [4, 1, 1, 1, 1, 1, 1, 1, 1, 1, 1, 1, 1, 1, 1, 1, 4], [0, 0.915332311, 1.819136955, 2.706846663, 3.586547465, 4.459518054, 5.340707479, 6.227863349, 7.133153174, 8.059268498, 9.028702269, 10.047606654, 11.120612155, 12.245963614, 13.433783089, 14.680604001, 16], False, 3, [1, 1, 1, 1, 1, 1, 1, 1, 1, 1, 1, 1, 1, 1, 1, 1, 1, 1, 1], False),  # 28
    Part.BSplineCurve([V(3.870939, -0.77785, 0), V(3.870343, -0.749385, 0), V(3.869162, -0.693008, 0), V(3.85559, -0.610227, 0), V(3.835706, -0.529826, 0), V(3.805737, -0.4528, 0), V(3.769158, -0.377738, 0), V(3.722743, -0.306611, 0), V(3.668942, -0.237844, 0), V(3.607226, -0.17327, 0), V(3.539693, -0.113992, 0), V(3.468315, -0.061261, 0), V(3.392977, -0.017293, 0), V(3.314086, 0.018585, 0), V(3.231625, 0.046647, 0), V(3.14562, 0.066978, 0), V(3.055932, 0.079457, 0), V(2.994971, 0.080752, 0), V(2.963978, 0.08141, 0)], [4, 1, 1, 1, 1, 1, 1, 1, 1, 1, 1, 1, 1, 1, 1, 1, 4], [0, 0.983748083, 1.948392443, 2.894712957, 3.844097841, 4.80183111, 5.778335162, 6.776009319, 7.81870978, 8.863265674, 9.881300176, 10.883814829, 11.87499822, 12.874611388, 13.892143829, 14.928324115, 16], False, 3, [1, 1, 1, 1, 1, 1, 1, 1, 1, 1, 1, 1, 1, 1, 1, 1, 1, 1, 1], False),  # 29
    Part.BSplineCurve([V(3.122982, -1.802474, 0), V(3.157441, -1.777399, 0), V(3.224165, -1.728846, 0), V(3.319105, -1.655897, 0), V(3.405187, -1.584552, 0), V(3.482714, -1.515267, 0), V(3.552452, -1.448567, 0), V(3.613628, -1.383649, 0), V(3.666864, -1.320978, 0), V(3.724177, -1.24063, 0), V(3.78274, -1.14195, 0), V(3.833033, -1.021048, 0), V(3.864746, -0.899675, 0), V(3.868893, -0.818099, 0), V(3.870939, -0.77785, 0)], [4, 1, 1, 1, 1, 1, 1, 1, 1, 1, 1, 1, 4], [0, 1.163667725, 2.253281268, 3.268753668, 4.215851969, 5.092017293, 5.902905408, 6.650798638, 7.335211899, 8.59617414, 9.77448103, 10.901945474, 12], False, 3, [1, 1, 1, 1, 1, 1, 1, 1, 1, 1, 1, 1, 1, 1, 1], False),  # 30
    Part.BSplineCurve([V(2.696214, -2.118575, 0), V(2.703164, -2.112373, 0), V(2.719676, -2.097638, 0), V(2.749862, -2.073515, 0), V(2.789724, -2.043758, 0), V(2.838222, -2.006939, 0), V(2.89625, -1.96423, 0), V(2.963813, -1.916175, 0), V(3.04016, -1.861215, 0), V(3.094336, -1.822791, 0), V(3.122982, -1.802474, 0)], [4, 1, 1, 1, 1, 1, 1, 1, 4], [0, 0.420754252, 0.999615792, 1.744751191, 2.668019286, 3.750313428, 4.999500688, 6.413464383, 8], False, 3, [1, 1, 1, 1, 1, 1, 1, 1, 1, 1, 1], False),  # 31
    Part.BSplineCurve([V(2.486964, -2.528806, 0), V(2.487321, -2.511796, 0), V(2.488035, -2.477747, 0), V(2.497991, -2.427445, 0), V(2.510781, -2.37727, 0), V(2.531049, -2.327447, 0), V(2.55903, -2.277106, 0), V(2.595774, -2.225379, 0), V(2.64205, -2.171811, 0), V(2.677499, -2.13697, 0), V(2.696214, -2.118575, 0)], [4, 1, 1, 1, 1, 1, 1, 1, 4], [0, 0.858281714, 1.717966888, 2.583508476, 3.4729293, 4.427298488, 5.488583878, 6.674047936, 8], False, 3, [1, 1, 1, 1, 1, 1, 1, 1, 1, 1, 1], False),  # 32
    Part.BSplineCurve([V(2.952529, -2.930769, 0), V(2.91973, -2.92967, 0), V(2.85648, -2.92755, 0), V(2.766682, -2.9044, 0), V(2.685861, -2.867949, 0), V(2.616417, -2.816864, 0), V(2.558598, -2.756338, 0), V(2.516774, -2.686689, 0), V(2.491601, -2.609779, 0), V(2.488529, -2.556129, 0), V(2.486964, -2.528806, 0)], [4, 1, 1, 1, 1, 1, 1, 1, 4], [0, 1.14458467, 2.207223713, 3.21896685, 4.227309161, 5.202851033, 6.127160689, 7.046193047, 8], False, 3, [1, 1, 1, 1, 1, 1, 1, 1, 1, 1, 1], False),  # 33
    Part.BSplineCurve([V(3.572647, -2.523718, 0), V(3.557093, -2.543756, 0), V(3.52714, -2.582343, 0), V(3.481665, -2.636383, 0), V(3.438804, -2.685746, 0), V(3.396576, -2.728623, 0), V(3.357212, -2.76736, 0), V(3.319006, -2.800525, 0), V(3.282507, -2.828442, 0), V(3.2365, -2.858236, 0), V(3.178699, -2.88777, 0), V(3.106141, -2.912761, 0), V(3.030317, -2.927778, 0), V(2.978673, -2.929764, 0), V(2.952529, -2.930769, 0)], [4, 1, 1, 1, 1, 1, 1, 1, 1, 1, 1, 1, 4], [0, 1.181633172, 2.275549214, 3.290209073, 4.226197932, 5.078386478, 5.862611352, 6.581680152, 7.217281963, 8.414376989, 9.595101626, 10.782541182, 12], False, 3, [1, 1, 1, 1, 1, 1, 1, 1, 1, 1, 1, 1, 1, 1, 1], False),  # 34
    Part.LineSegment(V(3.572647, -2.523718, 0), V(3.830234, -2.718975, 0)),  # 35
    Part.BSplineCurve([V(2.98433, -3.25641, 0), V(3.021745, -3.25512, 0), V(3.09615, -3.252553, 0), V(3.205596, -3.23024, 0), V(3.31097, -3.193319, 0), V(3.395736, -3.151419, 0), V(3.462078, -3.109571, 0), V(3.512672, -3.071453, 0), V(3.563942, -3.02757, 0), V(3.6163, -2.977805, 0), V(3.668861, -2.921701, 0), V(3.722403, -2.859643, 0), V(3.777053, -2.792009, 0), V(3.81221, -2.743727, 0), V(3.830234, -2.718975, 0)], [4, 1, 1, 1, 1, 1, 1, 1, 1, 1, 1, 1, 4], [0, 1.286793592, 2.559021753, 3.825965368, 5.121522368, 5.803751409, 6.523245864, 7.299691795, 8.125521123, 9.008227632, 9.944561021, 10.946284179, 12], False, 3, [1, 1, 1, 1, 1, 1, 1, 1, 1, 1, 1, 1, 1, 1, 1], False),  # 36
    Part.BSplineCurve([V(2.202029, -2.51545, 0), V(2.203213, -2.549041, 0), V(2.205555, -2.615506, 0), V(2.225368, -2.712598, 0), V(2.25664, -2.805296, 0), V(2.30045, -2.892681, 0), V(2.356926, -2.972479, 0), V(2.422282, -3.045607, 0), V(2.500126, -3.107082, 0), V(2.585535, -3.160796, 0), V(2.679022, -3.202839, 0), V(2.776985, -3.234553, 0), V(2.879581, -3.252523, 0), V(2.949071, -3.255102, 0), V(2.98433, -3.25641, 0)], [4, 1, 1, 1, 1, 1, 1, 1, 1, 1, 1, 1, 4], [0, 1.005424448, 1.989358655, 2.955360095, 3.929531133, 4.905563448, 5.876582895, 6.856512386, 7.866279853, 8.892233794, 9.918561126, 10.94386622, 12], False, 3, [1, 1, 1, 1, 1, 1, 1, 1, 1, 1, 1, 1, 1, 1, 1], False),  # 37
    Part.BSplineCurve([V(2.379477, -2.032076, 0), V(2.365442, -2.050764, 0), V(2.337838, -2.087517, 0), V(2.301402, -2.144962, 0), V(2.270433, -2.203766, 0), V(2.246156, -2.264087, 0), V(2.225712, -2.325079, 0), V(2.211962, -2.387537, 0), V(2.203352, -2.45118, 0), V(2.20247, -2.49401, 0), V(2.202029, -2.51545, 0)], [4, 1, 1, 1, 1, 1, 1, 1, 4], [0, 1.068054152, 2.10047183, 3.106115577, 4.101338837, 5.06977816, 6.043150881, 7.020423561, 8], False, 3, [1, 1, 1, 1, 1, 1, 1, 1, 1, 1, 1], False),  # 38
    Part.BSplineCurve([V(2.89974, -1.60022, 0), V(2.866335, -1.624013, 0), V(2.802468, -1.669504, 0), V(2.713152, -1.737017, 0), V(2.633283, -1.798743, 0), V(2.563216, -1.855262, 0), V(2.502983, -1.906581, 0), V(2.452107, -1.952208, 0), V(2.411885, -1.993378, 0), V(2.389519, -2.020085, 0), V(2.379477, -2.032076, 0)], [4, 1, 1, 1, 1, 1, 1, 1, 4], [0, 1.452282411, 2.77665338, 3.964542531, 5.026858415, 5.96415736, 6.766646006, 7.446254459, 8], False, 3, [1, 1, 1, 1, 1, 1, 1, 1, 1, 1, 1], False),  # 39
    Part.BSplineCurve([V(3.472156, -1.09395, 0), V(3.45794, -1.112136, 0), V(3.428097, -1.150313, 0), V(3.376791, -1.207142, 0), V(3.316587, -1.26576, 0), V(3.249546, -1.328406, 0), V(3.173226, -1.392167, 0), V(3.090016, -1.460084, 0), V(2.997792, -1.529572, 0), V(2.933113, -1.576174, 0), V(2.89974, -1.60022, 0)], [4, 1, 1, 1, 1, 1, 1, 1, 4], [0, 0.722233717, 1.516239348, 2.393582979, 3.351407094, 4.387010283, 5.505090956, 6.712668013, 8], False, 3, [1, 1, 1, 1, 1, 1, 1, 1, 1, 1, 1], False),  # 40
    Part.BSplineCurve([V(3.586003, -0.782302, 0), V(3.584666, -0.808737, 0), V(3.581947, -0.862475, 0), V(3.558967, -0.941759, 0), V(3.522819, -1.02022, 0), V(3.48947, -1.068753, 0), V(3.472156, -1.09395, 0)], [4, 1, 1, 1, 4], [0, 0.938893495, 1.908633276, 2.914225137, 4], False, 3, [1, 1, 1, 1, 1, 1, 1], False),  # 41
    Part.BSplineCurve([V(2.963978, -0.244231, 0), V(2.991815, -0.245006, 0), V(3.047003, -0.246543, 0), V(3.128248, -0.261312, 0), V(3.207153, -0.284002, 0), V(3.282091, -0.316496, 0), V(3.352028, -0.355811, 0), V(3.413357, -0.403296, 0), V(3.466376, -0.45646, 0), V(3.509746, -0.515772, 0), V(3.54302, -0.579559, 0), V(3.568594, -0.645033, 0), V(3.582786, -0.713222, 0), V(3.584924, -0.759133, 0), V(3.586003, -0.782302, 0)], [4, 1, 1, 1, 1, 1, 1, 1, 1, 1, 1, 1, 4], [0, 1.095163259, 2.171163733, 3.241058638, 4.321873601, 5.38011039, 6.391990106, 7.366004449, 8.327778327, 9.272591725, 10.192022065, 11.087607919, 12], False, 3, [1, 1, 1, 1, 1, 1, 1, 1, 1, 1, 1, 1, 1, 1, 1], False),  # 42
    Part.BSplineCurve([V(2.266902, -0.773397, 0), V(2.291865, -0.73161, 0), V(2.339693, -0.651548, 0), V(2.419478, -0.543364, 0), V(2.502148, -0.451414, 0), V(2.588317, -0.376233, 0), V(2.677459, -0.317043, 0), V(2.770154, -0.275131, 0), V(2.866092, -0.248991, 0), V(2.931382, -0.245816, 0), V(2.963978, -0.244231, 0)], [4, 1, 1, 1, 1, 1, 1, 1, 4], [0, 1.272034388, 2.437168799, 3.508375237, 4.49857839, 5.41946034, 6.295179144, 7.148887113, 8], False, 3, [1, 1, 1, 1, 1, 1, 1, 1, 1, 1, 1], False),  # 43
], False)
sketch2.addConstraint([
    Sketcher.Constraint("Block", 1),
    Sketcher.Constraint("Block", 2),
    Sketcher.Constraint("Block", 3),
    Sketcher.Constraint("Block", 4),
    Sketcher.Constraint("Block", 5),
    Sketcher.Constraint("Block", 9),
    Sketcher.Constraint("Block", 10),
    Sketcher.Constraint("Block", 11),
    Sketcher.Constraint("Block", 12),
    Sketcher.Constraint("Block", 18),
    Sketcher.Constraint("Block", 19),
    Sketcher.Constraint("Block", 20),
    Sketcher.Constraint("Block", 21),
    Sketcher.Constraint("Block", 23),
    Sketcher.Constraint("Block", 24),
    Sketcher.Constraint("Block", 28),
    Sketcher.Constraint("Block", 29),
    Sketcher.Constraint("Block", 30),
    Sketcher.Constraint("Block", 31),
    Sketcher.Constraint("Block", 32),
    Sketcher.Constraint("Block", 33),
    Sketcher.Constraint("Block", 34),
    Sketcher.Constraint("Block", 36),
    Sketcher.Constraint("Block", 37),
    Sketcher.Constraint("Block", 38),
    Sketcher.Constraint("Block", 39),
    Sketcher.Constraint("Block", 40),
    Sketcher.Constraint("Block", 41),
    Sketcher.Constraint("Block", 42),
    Sketcher.Constraint("Block", 43),
    Sketcher.Constraint("Coincident", 0, 2, 1, 2),
    Sketcher.Constraint("Coincident", 5, 1, 6, 1),
    Sketcher.Constraint("Coincident", 6, 2, 7, 1),
    Sketcher.Constraint("Coincident", 7, 2, 8, 1),
    Sketcher.Constraint("Coincident", 8, 2, 9, 2),
    Sketcher.Constraint("Coincident", 12, 1, 0, 1),
    Sketcher.Constraint("Coincident", 13, 2, 14, 1),
    Sketcher.Constraint("Coincident", 14, 2, 15, 1),
    Sketcher.Constraint("Coincident", 15, 2, 16, 1),
    Sketcher.Constraint("Coincident", 16, 2, 17, 1),
    Sketcher.Constraint("Coincident", 17, 2, 18, 2),
    Sketcher.Constraint("Coincident", 21, 1, 13, 1),
    Sketcher.Constraint("Coincident", 22, 2, 23, 2),
    Sketcher.Constraint("Coincident", 24, 1, 25, 1),
    Sketcher.Constraint("Coincident", 25, 2, 26, 1),
    Sketcher.Constraint("Coincident", 26, 2, 22, 1),
    Sketcher.Constraint("Coincident", 27, 2, 28, 2),
    Sketcher.Constraint("Coincident", 34, 1, 35, 1),
    Sketcher.Constraint("Coincident", 35, 2, 36, 2),
    Sketcher.Constraint("Coincident", 43, 1, 27, 1),
    Sketcher.Constraint("Horizontal", 6),
    Sketcher.Constraint("Vertical", 7),
    Sketcher.Constraint("Horizontal", 8),
    Sketcher.Constraint("Horizontal", 13),
    Sketcher.Constraint("Vertical", 14),
    Sketcher.Constraint("Horizontal", 15),
    Sketcher.Constraint("Vertical", 16),
    Sketcher.Constraint("Horizontal", 17),
    Sketcher.Constraint("Horizontal", 22),
    Sketcher.Constraint("Vertical", 26),
    Sketcher.Constraint("PointOnObject", 14, 2, -1),
    Sketcher.Constraint("Vertical", 16, 2, 25, 2),
    Sketcher.Constraint("Equal", 8, 26),
    Sketcher.Constraint("DistanceX", 6, 2, 6, 1, 1.343269),
    Sketcher.Constraint("DistanceX", 13, 2, 13, 1, 0.622661),
    Sketcher.Constraint("DistanceX", 17, 1, 17, 2, 0.227058),
])
pocket1 = doc.addObject("PartDesign::Pocket", "Pocket")
body.addObject(pocket1)
pocket1.Profile = sketch2
pocket1.Length = Q("0.05 in")
pocket1.Reversed = True

doc.recompute()
